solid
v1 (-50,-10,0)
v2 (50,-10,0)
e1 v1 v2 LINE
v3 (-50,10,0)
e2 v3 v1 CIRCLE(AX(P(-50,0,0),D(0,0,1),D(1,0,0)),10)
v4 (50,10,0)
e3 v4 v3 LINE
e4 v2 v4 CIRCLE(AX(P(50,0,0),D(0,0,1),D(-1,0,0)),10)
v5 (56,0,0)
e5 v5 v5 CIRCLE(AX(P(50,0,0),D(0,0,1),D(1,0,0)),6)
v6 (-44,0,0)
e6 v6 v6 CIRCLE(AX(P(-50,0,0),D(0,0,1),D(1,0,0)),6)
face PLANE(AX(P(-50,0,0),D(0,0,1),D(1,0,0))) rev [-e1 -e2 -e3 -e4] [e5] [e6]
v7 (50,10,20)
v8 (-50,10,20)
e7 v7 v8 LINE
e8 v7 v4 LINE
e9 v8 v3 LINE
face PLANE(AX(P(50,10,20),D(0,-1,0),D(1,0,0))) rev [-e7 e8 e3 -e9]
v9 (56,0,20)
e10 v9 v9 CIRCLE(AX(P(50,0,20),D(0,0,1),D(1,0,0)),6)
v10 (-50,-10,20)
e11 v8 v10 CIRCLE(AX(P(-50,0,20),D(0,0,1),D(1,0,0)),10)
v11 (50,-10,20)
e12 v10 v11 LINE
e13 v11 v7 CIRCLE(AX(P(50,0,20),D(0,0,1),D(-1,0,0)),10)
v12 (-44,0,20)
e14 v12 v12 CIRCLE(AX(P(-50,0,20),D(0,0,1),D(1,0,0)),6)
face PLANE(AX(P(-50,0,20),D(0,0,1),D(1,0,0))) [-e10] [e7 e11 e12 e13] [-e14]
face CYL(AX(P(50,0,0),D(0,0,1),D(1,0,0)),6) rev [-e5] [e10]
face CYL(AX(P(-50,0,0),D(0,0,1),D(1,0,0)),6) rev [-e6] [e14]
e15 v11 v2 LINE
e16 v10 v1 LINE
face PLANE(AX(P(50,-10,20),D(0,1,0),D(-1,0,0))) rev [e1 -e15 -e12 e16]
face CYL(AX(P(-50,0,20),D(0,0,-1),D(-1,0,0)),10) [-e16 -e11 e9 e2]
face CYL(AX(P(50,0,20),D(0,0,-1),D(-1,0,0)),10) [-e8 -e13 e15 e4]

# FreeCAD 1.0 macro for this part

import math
import FreeCAD as App
import Part
import Sketcher

doc = App.newDocument("Part")
body = doc.addObject("PartDesign::Body", "Body")

sketch1 = doc.addObject("Sketcher::SketchObject", "Sketch")
body.addObject(sketch1)
sketch1.AttachmentSupport = (doc.XY_Plane, [""])
sketch1.MapMode = "FlatFace"
sketch1.addGeometry(Part.LineSegment(App.Vector(-50, -10, 0), App.Vector(50, -10, 0)), False)
sketch1.addGeometry(Part.ArcOfCircle(Part.Circle(App.Vector(50, 0, 0), App.Vector(0, 0, 1), 10), math.radians(-90), math.radians(90)), False)
sketch1.addGeometry(Part.LineSegment(App.Vector(50, 10, 0), App.Vector(-50, 10, 0)), False)
sketch1.addGeometry(Part.ArcOfCircle(Part.Circle(App.Vector(-50, 0, 0), App.Vector(0, 0, 1), 10), math.radians(90), math.radians(270)), False)
sketch1.addConstraint(Sketcher.Constraint("Tangent", 0, 2, 1, 1))
sketch1.addConstraint(Sketcher.Constraint("Tangent", 1, 2, 2, 1))
sketch1.addConstraint(Sketcher.Constraint("Tangent", 2, 2, 3, 1))
sketch1.addConstraint(Sketcher.Constraint("Tangent", 3, 2, 0, 1))
sketch1.addConstraint(Sketcher.Constraint("Horizontal", 0))
sketch1.addConstraint(Sketcher.Constraint("Horizontal", 2))
sketch1.addConstraint(Sketcher.Constraint("Symmetric", 1, 3, 3, 3, -1, 1))
sketch1.addConstraint(Sketcher.Constraint("Radius", 1, 10.0))
sketch1.addConstraint(Sketcher.Constraint("DistanceX", 0, 1, 0, 2, 100.0))
pad1 = doc.addObject("PartDesign::Pad", "Pad")
body.addObject(pad1)
pad1.Profile = sketch1
pad1.Length = 20

sketch2 = doc.addObject("Sketcher::SketchObject", "Sketch001")
body.addObject(sketch2)
sketch2.AttachmentSupport = (doc.XY_Plane, [""])
sketch2.MapMode = "FlatFace"
sketch2.AttachmentOffset = App.Placement(App.Vector(0, 0, 20), App.Rotation())
sketch2.addGeometry(Part.Circle(App.Vector(-50, 0, 0), App.Vector(0, 0, 1), 6), False)
sketch2.addGeometry(Part.Circle(App.Vector(50, 0, 0), App.Vector(0, 0, 1), 6), False)
sketch2.addConstraint(Sketcher.Constraint("Equal", 0, 1))
sketch2.addConstraint(Sketcher.Constraint("Symmetric", 0, 3, 1, 3, -1, 1))
sketch2.addConstraint(Sketcher.Constraint("PointOnObject", 0, 3, -1))
sketch2.addConstraint(Sketcher.Constraint("Diameter", 0, 12.0))
sketch2.addConstraint(Sketcher.Constraint("DistanceX", 0, 3, -1, 1, 50.0))
pocket1 = doc.addObject("PartDesign::Pocket", "Pocket")
body.addObject(pocket1)
pocket1.Profile = sketch2
pocket1.Type = "ThroughAll"

doc.recompute()
